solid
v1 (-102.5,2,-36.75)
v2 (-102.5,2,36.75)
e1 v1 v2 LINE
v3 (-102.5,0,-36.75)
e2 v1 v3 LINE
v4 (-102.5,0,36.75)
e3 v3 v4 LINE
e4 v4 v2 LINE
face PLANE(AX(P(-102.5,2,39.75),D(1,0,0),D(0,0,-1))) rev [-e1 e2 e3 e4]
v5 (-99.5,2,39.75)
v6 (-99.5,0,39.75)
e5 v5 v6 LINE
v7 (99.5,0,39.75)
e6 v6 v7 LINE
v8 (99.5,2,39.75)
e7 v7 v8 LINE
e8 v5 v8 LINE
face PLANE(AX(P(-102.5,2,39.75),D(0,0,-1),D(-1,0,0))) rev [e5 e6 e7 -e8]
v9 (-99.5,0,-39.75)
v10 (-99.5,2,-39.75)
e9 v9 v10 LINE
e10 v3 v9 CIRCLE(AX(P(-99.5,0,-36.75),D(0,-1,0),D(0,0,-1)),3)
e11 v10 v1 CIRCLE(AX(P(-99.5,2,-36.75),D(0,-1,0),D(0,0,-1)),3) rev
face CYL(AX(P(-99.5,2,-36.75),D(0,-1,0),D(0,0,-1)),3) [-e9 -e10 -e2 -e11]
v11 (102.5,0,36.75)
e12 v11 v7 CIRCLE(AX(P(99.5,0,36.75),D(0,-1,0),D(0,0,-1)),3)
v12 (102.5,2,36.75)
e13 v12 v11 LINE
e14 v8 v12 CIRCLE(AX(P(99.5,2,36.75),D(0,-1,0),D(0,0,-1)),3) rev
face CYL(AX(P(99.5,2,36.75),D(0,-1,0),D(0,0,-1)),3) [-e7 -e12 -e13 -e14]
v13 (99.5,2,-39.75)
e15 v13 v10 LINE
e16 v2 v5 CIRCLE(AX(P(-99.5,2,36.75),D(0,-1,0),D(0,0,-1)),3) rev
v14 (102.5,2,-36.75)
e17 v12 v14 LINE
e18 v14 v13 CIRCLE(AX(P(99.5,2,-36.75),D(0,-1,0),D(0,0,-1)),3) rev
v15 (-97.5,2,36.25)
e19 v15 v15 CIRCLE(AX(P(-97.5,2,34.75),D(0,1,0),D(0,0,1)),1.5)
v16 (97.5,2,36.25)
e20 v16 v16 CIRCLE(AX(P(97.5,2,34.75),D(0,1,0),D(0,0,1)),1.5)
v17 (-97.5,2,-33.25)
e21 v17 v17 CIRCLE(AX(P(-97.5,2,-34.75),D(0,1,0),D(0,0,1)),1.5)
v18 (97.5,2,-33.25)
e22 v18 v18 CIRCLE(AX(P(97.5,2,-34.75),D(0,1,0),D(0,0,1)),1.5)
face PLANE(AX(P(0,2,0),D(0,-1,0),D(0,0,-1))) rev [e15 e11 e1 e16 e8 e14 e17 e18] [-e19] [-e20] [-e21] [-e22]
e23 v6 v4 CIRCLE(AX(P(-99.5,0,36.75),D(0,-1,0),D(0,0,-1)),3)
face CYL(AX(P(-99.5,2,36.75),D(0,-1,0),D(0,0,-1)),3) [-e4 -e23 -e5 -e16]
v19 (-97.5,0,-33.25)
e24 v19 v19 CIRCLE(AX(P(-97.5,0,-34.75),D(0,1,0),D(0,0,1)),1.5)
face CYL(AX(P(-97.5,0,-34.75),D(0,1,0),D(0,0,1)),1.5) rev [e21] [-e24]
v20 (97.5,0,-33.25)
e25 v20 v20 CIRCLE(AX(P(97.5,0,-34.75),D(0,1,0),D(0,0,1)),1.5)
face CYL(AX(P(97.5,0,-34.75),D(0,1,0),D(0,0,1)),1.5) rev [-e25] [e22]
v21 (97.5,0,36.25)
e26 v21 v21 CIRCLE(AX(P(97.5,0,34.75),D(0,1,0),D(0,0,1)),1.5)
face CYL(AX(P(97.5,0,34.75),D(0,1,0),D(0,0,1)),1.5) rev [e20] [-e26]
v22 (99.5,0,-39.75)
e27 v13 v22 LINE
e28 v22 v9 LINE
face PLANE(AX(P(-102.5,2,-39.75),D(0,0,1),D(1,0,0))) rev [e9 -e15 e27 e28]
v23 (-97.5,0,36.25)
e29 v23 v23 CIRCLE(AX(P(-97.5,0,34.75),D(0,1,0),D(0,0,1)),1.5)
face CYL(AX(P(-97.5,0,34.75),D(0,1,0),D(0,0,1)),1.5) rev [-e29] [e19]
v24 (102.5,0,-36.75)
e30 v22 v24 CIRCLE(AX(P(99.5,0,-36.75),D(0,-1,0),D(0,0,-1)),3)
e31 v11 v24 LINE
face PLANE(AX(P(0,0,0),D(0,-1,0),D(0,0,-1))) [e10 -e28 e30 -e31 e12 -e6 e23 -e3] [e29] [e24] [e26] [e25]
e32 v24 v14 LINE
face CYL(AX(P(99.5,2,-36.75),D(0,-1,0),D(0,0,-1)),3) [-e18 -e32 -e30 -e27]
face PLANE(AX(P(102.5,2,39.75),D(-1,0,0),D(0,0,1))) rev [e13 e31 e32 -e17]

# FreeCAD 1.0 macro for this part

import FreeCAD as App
import Part
import Sketcher
Q = App.Units.Quantity


def edges_at(feature, points):
    """Names of the edges that pass closest to the given points."""
    edges = feature.Shape.Edges
    near = lambda p: min(range(len(edges)), key=lambda i: edges[i].distToShape(Part.Vertex(*p))[0])
    return sorted({f"Edge{near(p) + 1}" for p in points})


def add_polygon(sketch, points):
    """Adds a closed chain of lines whose ends are joined by coincident constraints."""
    first, n = sketch.GeometryCount, len(points)
    for a, b in zip(points, points[1:] + points[:1]):
        sketch.addGeometry(Part.LineSegment(App.Vector(*a, 0), App.Vector(*b, 0)), False)
    for i in range(n):
        sketch.addConstraint(Sketcher.Constraint("Coincident", first + i, 2, first + (i + 1) % n, 1))

doc = App.newDocument("Part")
body = doc.addObject("PartDesign::Body", "Body")

# Sketch on XZ plane
sketch1 = body.newObject("Sketcher::SketchObject", "Sketch")
sketch1.AttachmentSupport = (doc.getObject("XZ_Plane"), [""])
sketch1.MapMode = "FlatFace"
add_polygon(sketch1, [(-102, -40), (-102, 40), (102, 40), (102, -40)])  # lines 0-3
sketch1.addConstraint(Sketcher.Constraint("Vertical", 0))
sketch1.addConstraint(Sketcher.Constraint("Horizontal", 1))
sketch1.addConstraint(Sketcher.Constraint("Vertical", 2))
sketch1.addConstraint(Sketcher.Constraint("Horizontal", 3))
sketch1.addConstraint(Sketcher.Constraint("Symmetric", 0, 2, 2, 2, -1, 1))
sketch1.addConstraint(Sketcher.Constraint("DistanceX", 1, 1, 1, 2, Q("205 mm")))
sketch1.addConstraint(Sketcher.Constraint("DistanceY", 0, 1, 0, 2, Q("79.5 mm")))
pad1 = body.newObject("PartDesign::Pad", "Pad")
pad1.Profile = sketch1
pad1.Length = 2
pad1.Reversed = True

# Sketch on XZ plane
sketch2 = body.newObject("Sketcher::SketchObject", "Sketch001")
sketch2.AttachmentSupport = (doc.getObject("XZ_Plane"), [""])
sketch2.MapMode = "FlatFace"
sketch2.AttachmentOffset = App.Placement(App.Vector(0, 0, -2), App.Rotation())
sketch2.addGeometry(Part.Circle(App.Vector(-97.5, -34.8, 0), App.Vector(0, 0, 1), 1.5), False)
sketch2.addGeometry(Part.Circle(App.Vector(-97.5, 34.8, 0), App.Vector(0, 0, 1), 1.5), False)
sketch2.addGeometry(Part.Circle(App.Vector(97.5, 34.8, 0), App.Vector(0, 0, 1), 1.5), False)
sketch2.addGeometry(Part.Circle(App.Vector(97.5, -34.8, 0), App.Vector(0, 0, 1), 1.5), False)
sketch2.addConstraint(Sketcher.Constraint("Equal", 0, 1))
sketch2.addConstraint(Sketcher.Constraint("Equal", 1, 2))
sketch2.addConstraint(Sketcher.Constraint("Equal", 2, 3))
sketch2.addConstraint(Sketcher.Constraint("Symmetric", 0, 3, 2, 3, -1, 1))
sketch2.addConstraint(Sketcher.Constraint("Symmetric", 1, 3, 3, 3, -1, 1))
sketch2.addConstraint(Sketcher.Constraint("Symmetric", 1, 3, 2, 3, -2))
sketch2.addConstraint(Sketcher.Constraint("Diameter", 0, Q("3 mm")))
sketch2.addConstraint(Sketcher.Constraint("DistanceX", 1, 3, 2, 3, Q("195 mm")))
sketch2.addConstraint(Sketcher.Constraint("DistanceY", 0, 3, 1, 3, Q("69.5 mm")))
pocket1 = body.newObject("PartDesign::Pocket", "Pocket")
pocket1.Profile = sketch2
pocket1.Length = 2
pocket1.Reversed = True
doc.recompute()

fillet = body.newObject("PartDesign::Fillet", "Fillet")
fillet.Base = (pocket1, edges_at(pocket1, [(-102.5, 1, 39.75)]))
fillet.Radius = 3
doc.recompute()

fillet2 = body.newObject("PartDesign::Fillet", "Fillet001")
fillet2.Base = (fillet, edges_at(fillet, [(102.5, 1, 39.75)]))
fillet2.Radius = 3
doc.recompute()

fillet3 = body.newObject("PartDesign::Fillet", "Fillet002")
fillet3.Base = (fillet2, edges_at(fillet2, [(102.5, 1, -39.75)]))
fillet3.Radius = 3
doc.recompute()

fillet4 = body.newObject("PartDesign::Fillet", "Fillet003")
fillet4.Base = (fillet3, edges_at(fillet3, [(-102.5, 1, -39.75)]))
fillet4.Radius = 3

doc.recompute()
